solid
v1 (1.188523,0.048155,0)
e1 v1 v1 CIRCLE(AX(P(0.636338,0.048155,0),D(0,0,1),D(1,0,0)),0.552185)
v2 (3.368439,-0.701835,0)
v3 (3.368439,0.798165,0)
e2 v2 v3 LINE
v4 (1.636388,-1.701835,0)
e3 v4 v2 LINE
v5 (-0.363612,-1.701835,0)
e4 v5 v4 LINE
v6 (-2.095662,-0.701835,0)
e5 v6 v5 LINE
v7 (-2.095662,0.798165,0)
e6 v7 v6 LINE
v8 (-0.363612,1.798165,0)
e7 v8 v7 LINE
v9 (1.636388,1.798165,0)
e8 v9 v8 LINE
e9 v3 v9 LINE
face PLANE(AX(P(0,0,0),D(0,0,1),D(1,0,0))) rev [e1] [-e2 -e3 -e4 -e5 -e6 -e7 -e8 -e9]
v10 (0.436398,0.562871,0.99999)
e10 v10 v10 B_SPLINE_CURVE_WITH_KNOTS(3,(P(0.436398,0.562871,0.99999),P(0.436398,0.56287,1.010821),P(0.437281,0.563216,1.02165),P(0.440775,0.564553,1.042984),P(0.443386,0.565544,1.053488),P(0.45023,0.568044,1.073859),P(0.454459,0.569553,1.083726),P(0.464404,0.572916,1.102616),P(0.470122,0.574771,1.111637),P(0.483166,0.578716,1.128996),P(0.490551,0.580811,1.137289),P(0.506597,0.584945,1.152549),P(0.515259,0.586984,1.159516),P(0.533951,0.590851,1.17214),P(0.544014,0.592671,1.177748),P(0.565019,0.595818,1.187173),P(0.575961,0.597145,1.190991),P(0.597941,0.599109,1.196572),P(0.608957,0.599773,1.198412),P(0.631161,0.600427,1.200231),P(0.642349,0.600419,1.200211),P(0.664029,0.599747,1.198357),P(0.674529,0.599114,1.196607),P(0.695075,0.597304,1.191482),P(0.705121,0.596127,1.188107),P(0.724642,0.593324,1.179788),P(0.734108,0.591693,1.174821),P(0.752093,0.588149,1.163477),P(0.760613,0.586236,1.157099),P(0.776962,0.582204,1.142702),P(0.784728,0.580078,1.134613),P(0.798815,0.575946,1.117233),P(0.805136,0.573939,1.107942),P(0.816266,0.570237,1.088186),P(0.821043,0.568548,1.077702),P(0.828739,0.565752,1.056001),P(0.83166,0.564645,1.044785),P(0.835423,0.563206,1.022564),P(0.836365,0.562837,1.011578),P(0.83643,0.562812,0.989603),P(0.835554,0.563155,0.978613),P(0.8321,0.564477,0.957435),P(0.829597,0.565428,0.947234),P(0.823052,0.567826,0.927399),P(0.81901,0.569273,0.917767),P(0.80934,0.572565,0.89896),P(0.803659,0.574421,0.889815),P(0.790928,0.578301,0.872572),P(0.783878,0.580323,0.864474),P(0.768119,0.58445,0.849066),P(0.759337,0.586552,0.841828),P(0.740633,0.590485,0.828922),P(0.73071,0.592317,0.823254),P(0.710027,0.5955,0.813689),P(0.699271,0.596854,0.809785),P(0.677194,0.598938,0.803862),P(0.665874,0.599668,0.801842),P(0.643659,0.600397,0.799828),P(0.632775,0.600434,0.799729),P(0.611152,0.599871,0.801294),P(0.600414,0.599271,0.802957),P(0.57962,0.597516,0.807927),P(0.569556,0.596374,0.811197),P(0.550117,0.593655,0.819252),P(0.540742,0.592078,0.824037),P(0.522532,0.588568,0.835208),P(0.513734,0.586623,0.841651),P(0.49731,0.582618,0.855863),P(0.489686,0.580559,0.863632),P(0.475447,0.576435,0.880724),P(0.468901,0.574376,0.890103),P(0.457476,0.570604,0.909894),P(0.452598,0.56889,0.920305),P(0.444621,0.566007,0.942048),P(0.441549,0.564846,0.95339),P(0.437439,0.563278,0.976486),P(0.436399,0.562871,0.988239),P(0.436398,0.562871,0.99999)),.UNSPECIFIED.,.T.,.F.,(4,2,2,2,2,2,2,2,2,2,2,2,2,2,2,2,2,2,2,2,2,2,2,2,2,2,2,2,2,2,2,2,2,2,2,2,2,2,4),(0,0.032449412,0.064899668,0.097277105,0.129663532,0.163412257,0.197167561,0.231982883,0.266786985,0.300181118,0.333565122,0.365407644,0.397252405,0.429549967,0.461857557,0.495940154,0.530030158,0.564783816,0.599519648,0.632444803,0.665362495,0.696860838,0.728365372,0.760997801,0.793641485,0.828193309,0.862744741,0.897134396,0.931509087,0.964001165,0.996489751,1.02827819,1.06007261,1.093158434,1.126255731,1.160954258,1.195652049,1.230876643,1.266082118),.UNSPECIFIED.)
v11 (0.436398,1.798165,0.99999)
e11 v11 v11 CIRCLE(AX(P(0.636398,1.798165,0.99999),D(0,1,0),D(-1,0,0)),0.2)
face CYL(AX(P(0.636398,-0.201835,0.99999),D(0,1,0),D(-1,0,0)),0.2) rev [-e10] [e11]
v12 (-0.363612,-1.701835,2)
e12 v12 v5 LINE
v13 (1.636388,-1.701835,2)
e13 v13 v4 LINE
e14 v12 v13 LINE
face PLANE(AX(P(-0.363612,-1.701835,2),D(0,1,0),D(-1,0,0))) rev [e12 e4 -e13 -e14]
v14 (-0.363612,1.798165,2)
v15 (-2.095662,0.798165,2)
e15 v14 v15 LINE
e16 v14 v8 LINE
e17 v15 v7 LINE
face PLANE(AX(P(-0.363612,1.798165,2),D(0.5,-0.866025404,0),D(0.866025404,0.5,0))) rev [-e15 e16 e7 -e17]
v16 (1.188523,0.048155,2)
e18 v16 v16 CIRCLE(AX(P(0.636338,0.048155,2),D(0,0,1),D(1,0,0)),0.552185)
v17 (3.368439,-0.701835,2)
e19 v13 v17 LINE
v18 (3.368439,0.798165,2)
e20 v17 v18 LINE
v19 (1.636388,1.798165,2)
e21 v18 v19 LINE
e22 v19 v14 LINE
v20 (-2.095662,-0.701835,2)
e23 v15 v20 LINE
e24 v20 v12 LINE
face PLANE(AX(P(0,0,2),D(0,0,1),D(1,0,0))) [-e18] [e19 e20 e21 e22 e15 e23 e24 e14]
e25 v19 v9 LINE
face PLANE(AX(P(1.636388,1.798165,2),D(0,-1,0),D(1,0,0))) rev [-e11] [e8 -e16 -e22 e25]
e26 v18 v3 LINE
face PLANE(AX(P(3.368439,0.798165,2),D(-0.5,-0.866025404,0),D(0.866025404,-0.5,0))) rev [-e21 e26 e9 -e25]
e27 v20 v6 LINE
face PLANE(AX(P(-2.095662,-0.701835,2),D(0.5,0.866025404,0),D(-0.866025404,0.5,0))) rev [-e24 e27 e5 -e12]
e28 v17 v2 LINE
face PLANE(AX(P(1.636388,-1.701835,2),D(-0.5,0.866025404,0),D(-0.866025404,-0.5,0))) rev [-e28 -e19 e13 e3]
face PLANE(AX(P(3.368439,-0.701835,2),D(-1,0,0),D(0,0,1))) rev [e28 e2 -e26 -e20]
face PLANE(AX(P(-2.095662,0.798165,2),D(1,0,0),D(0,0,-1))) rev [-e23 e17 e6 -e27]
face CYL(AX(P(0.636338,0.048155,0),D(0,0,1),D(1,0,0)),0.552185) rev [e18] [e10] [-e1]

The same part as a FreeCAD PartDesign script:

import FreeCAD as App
import Part
import Sketcher

V = App.Vector
Q = App.Units.Quantity

doc = App.newDocument("Part")
params = doc.addObject("Spreadsheet::Sheet", "Params")
for row, (alias, value) in enumerate([
    ("sketch1_width", "2 mm"),
    ("sketch1_length", "2 mm"),
    ("sketch1_height", "1.5 mm"),
    ("pad1_length", "2 mm"),
    ("pocket1_length", "2 mm"),
    ("sketch3_diameter", "0.4 mm"),
    ("pocket2_length", "2 mm"),
], start=1):
    params.set(f"A{row}", alias)
    params.set(f"B{row}", "=" + value)
    params.setAlias(f"B{row}", alias)

body = doc.addObject("PartDesign::Body", "Body")

sketch1 = body.newObject("Sketcher::SketchObject", "Sketch")
sketch1.AttachmentSupport = (doc.getObject("XY_Plane"), [""])
sketch1.MapMode = "FlatFace"
sketch1.addGeometry(Part.LineSegment(V(-0.4, 1.8, 0), V(-2.1, 0.8, 0)), False)
sketch1.addGeometry(Part.LineSegment(V(-2.1, 0.8, 0), V(-2.1, -0.7, 0)), False)
sketch1.addGeometry(Part.LineSegment(V(-2.1, -0.7, 0), V(-0.4, -1.7, 0)), False)
sketch1.addGeometry(Part.LineSegment(V(-0.4, -1.7, 0), V(1.6, -1.7, 0)), False)
sketch1.addGeometry(Part.LineSegment(V(1.6, -1.7, 0), V(3.4, -0.7, 0)), False)
sketch1.addGeometry(Part.LineSegment(V(3.4, -0.7, 0), V(3.4, 0.8, 0)), False)
sketch1.addGeometry(Part.LineSegment(V(3.4, 0.8, 0), V(1.6, 1.8, 0)), False)
sketch1.addGeometry(Part.LineSegment(V(1.6, 1.8, 0), V(-0.4, 1.8, 0)), False)
sketch1.addConstraint(Sketcher.Constraint("Coincident", 0, 2, 1, 1))
sketch1.addConstraint(Sketcher.Constraint("Coincident", 1, 2, 2, 1))
sketch1.addConstraint(Sketcher.Constraint("Coincident", 2, 2, 3, 1))
sketch1.addConstraint(Sketcher.Constraint("Coincident", 3, 2, 4, 1))
sketch1.addConstraint(Sketcher.Constraint("Coincident", 4, 2, 5, 1))
sketch1.addConstraint(Sketcher.Constraint("Coincident", 5, 2, 6, 1))
sketch1.addConstraint(Sketcher.Constraint("Coincident", 6, 2, 7, 1))
sketch1.addConstraint(Sketcher.Constraint("Coincident", 7, 2, 0, 1))
sketch1.addConstraint(Sketcher.Constraint("Vertical", 1))
sketch1.addConstraint(Sketcher.Constraint("Horizontal", 3))
sketch1.addConstraint(Sketcher.Constraint("Vertical", 5))
sketch1.addConstraint(Sketcher.Constraint("Horizontal", 7))
sketch1.addConstraint(Sketcher.Constraint("Parallel", 0, 4))
sketch1.addConstraint(Sketcher.Constraint("Parallel", 2, 6))
sketch1.addConstraint(Sketcher.Constraint("Horizontal", 1, 2, 4, 2))
sketch1.addConstraint(Sketcher.Constraint("Horizontal", 0, 2, 5, 2))
sketch1.addConstraint(Sketcher.Constraint("Vertical", 3, 2, 6, 2))
sketch1.addConstraint(Sketcher.Constraint("Vertical", 2, 2, 7, 2))
sketch1.addConstraint(Sketcher.Constraint("DistanceX", 3, 1, 3, 2, Q("2 mm")))
sketch1.addConstraint(Sketcher.Constraint("Angle", 0, Q("-150 deg")))
sketch1.addConstraint(Sketcher.Constraint("Distance", 0, Q("2 mm")))
sketch1.addConstraint(Sketcher.Constraint("DistanceY", 1, 2, 1, 1, Q("1.5 mm")))
sketch1.addConstraint(Sketcher.Constraint("DistanceX", 2, 2, -1, 1, Q("0.363612 mm")))
sketch1.addConstraint(Sketcher.Constraint("DistanceY", -1, 1, 0, 2, Q("0.798165 mm")))
sketch1.setExpression("Constraints[18]", "Params.sketch1_width")
sketch1.setExpression("Constraints[20]", "Params.sketch1_length")
sketch1.setExpression("Constraints[21]", "Params.sketch1_height")
pad1 = body.newObject("PartDesign::Pad", "Pad")
pad1.Profile = sketch1
pad1.setExpression("Length", "Params.pad1_length")

sketch2 = body.newObject("Sketcher::SketchObject", "Sketch001")
sketch2.AttachmentSupport = (doc.getObject("XY_Plane"), [""])
sketch2.MapMode = "FlatFace"
sketch2.AttachmentOffset = App.Placement(V(0, 0, 2), App.Rotation())
sketch2.addGeometry(Part.Circle(V(0.6, 0, 0), V(0, 0, 1), 0.6), False)
sketch2.addConstraint(Sketcher.Constraint("Diameter", 0, Q("1.10437 mm")))
sketch2.addConstraint(Sketcher.Constraint("DistanceX", -1, 1, 0, 3, Q("0.636338 mm")))
sketch2.addConstraint(Sketcher.Constraint("DistanceY", -1, 1, 0, 3, Q("0.048155 mm")))
pocket1 = body.newObject("PartDesign::Pocket", "Pocket")
pocket1.Profile = sketch2
pocket1.setExpression("Length", "Params.pocket1_length")

sketch3 = body.newObject("Sketcher::SketchObject", "Sketch002")
sketch3.AttachmentSupport = (doc.getObject("XZ_Plane"), [""])
sketch3.MapMode = "FlatFace"
sketch3.AttachmentOffset = App.Placement(V(0, 0, -1.798165), App.Rotation())
sketch3.addGeometry(Part.Circle(V(0.64, 1, 0), V(0, 0, 1), 0.2), False)
sketch3.addConstraint(Sketcher.Constraint("Diameter", 0, Q("0.4 mm")))
sketch3.addConstraint(Sketcher.Constraint("DistanceX", -1, 1, 0, 3, Q("0.636398 mm")))
sketch3.addConstraint(Sketcher.Constraint("DistanceY", -1, 1, 0, 3, Q("0.99999 mm")))
sketch3.setExpression("Constraints[0]", "Params.sketch3_diameter")
pocket2 = body.newObject("PartDesign::Pocket", "Pocket001")
pocket2.Profile = sketch3
pocket2.setExpression("Length", "Params.pocket2_length")
pocket2.Reversed = True

doc.recompute()
